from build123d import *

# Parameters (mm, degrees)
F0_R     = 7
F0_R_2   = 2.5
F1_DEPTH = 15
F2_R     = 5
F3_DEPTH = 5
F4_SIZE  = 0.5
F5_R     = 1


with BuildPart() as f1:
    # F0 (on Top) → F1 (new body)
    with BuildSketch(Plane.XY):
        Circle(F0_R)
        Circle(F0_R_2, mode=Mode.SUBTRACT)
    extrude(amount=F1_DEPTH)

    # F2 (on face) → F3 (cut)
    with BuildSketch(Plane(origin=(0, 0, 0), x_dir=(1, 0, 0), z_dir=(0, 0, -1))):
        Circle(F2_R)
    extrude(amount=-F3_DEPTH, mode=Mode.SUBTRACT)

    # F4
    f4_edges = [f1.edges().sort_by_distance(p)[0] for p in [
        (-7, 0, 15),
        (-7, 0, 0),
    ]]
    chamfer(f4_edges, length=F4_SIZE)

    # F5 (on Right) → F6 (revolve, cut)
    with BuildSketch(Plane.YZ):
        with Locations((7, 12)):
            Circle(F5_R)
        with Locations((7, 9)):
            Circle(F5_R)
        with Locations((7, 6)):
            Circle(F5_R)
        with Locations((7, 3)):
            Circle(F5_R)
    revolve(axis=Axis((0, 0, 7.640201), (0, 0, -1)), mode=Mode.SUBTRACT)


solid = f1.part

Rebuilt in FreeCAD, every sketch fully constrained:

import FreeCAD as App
import Part
import Sketcher

V = App.Vector
Q = App.Units.Quantity


def edges_at(feature, points):
    """Names of the edges that pass closest to the given points."""
    edges = feature.Shape.Edges
    near = lambda p: min(range(len(edges)), key=lambda i: edges[i].distToShape(Part.Vertex(*p))[0])
    return sorted({f"Edge{near(p) + 1}" for p in points})

doc = App.newDocument("Part")
params = doc.addObject("Spreadsheet::Sheet", "Params")
for row, (alias, value) in enumerate([
    ("sketch1_diameter", "14 mm"),
    ("sketch1_diameter2", "5 mm"),
    ("pad1_length", "15 mm"),
    ("sketch2_diameter", "10 mm"),
    ("pocket1_length", "5 mm"),
    ("chamfer_size", "0.5 mm"),
    ("sketch3_diameter", "2 mm"),
    ("groove_angle", "360 deg"),
], start=1):
    params.set(f"A{row}", alias)
    params.set(f"B{row}", "=" + value)
    params.setAlias(f"B{row}", alias)

body = doc.addObject("PartDesign::Body", "Body")

sketch1 = doc.addObject("Sketcher::SketchObject", "Sketch")
body.addObject(sketch1)
sketch1.AttachmentSupport = (doc.XY_Plane, [""])
sketch1.MapMode = "FlatFace"
sketch1.addGeometry([
    Part.Circle(V(0, 0, 0), V(0, 0, 1), 7),
    Part.Circle(V(0, 0, 0), V(0, 0, 1), 2.5),
], False)
sketch1.addConstraint([
    Sketcher.Constraint("Coincident", 0, 3, -1, 1),
    Sketcher.Constraint("Coincident", 1, 3, -1, 1),
    Sketcher.Constraint("Diameter", 0, Q("14 mm")),
    Sketcher.Constraint("Diameter", 1, Q("5 mm")),
])
sketch1.setExpression("Constraints[2]", "Params.sketch1_diameter")
sketch1.setExpression("Constraints[3]", "Params.sketch1_diameter2")
pad1 = doc.addObject("PartDesign::Pad", "Pad")
body.addObject(pad1)
pad1.Profile = sketch1
pad1.setExpression("Length", "Params.pad1_length")

sketch2 = doc.addObject("Sketcher::SketchObject", "Sketch001")
body.addObject(sketch2)
sketch2.AttachmentSupport = (doc.XY_Plane, [""])
sketch2.MapMode = "FlatFace"
sketch2.addGeometry(Part.Circle(V(0, 0, 0), V(0, 0, 1), 5), False)
sketch2.addConstraint([
    Sketcher.Constraint("Coincident", 0, 3, -1, 1),
    Sketcher.Constraint("Diameter", 0, Q("10 mm")),
])
sketch2.setExpression("Constraints[1]", "Params.sketch2_diameter")
pocket1 = doc.addObject("PartDesign::Pocket", "Pocket")
body.addObject(pocket1)
pocket1.Profile = sketch2
pocket1.setExpression("Length", "Params.pocket1_length")
pocket1.Reversed = True
doc.recompute()

chamfer = doc.addObject("PartDesign::Chamfer", "Chamfer")
body.addObject(chamfer)
chamfer.Base = (pocket1, edges_at(pocket1, [(-7, 0, 15), (-7, 0, 0)]))
chamfer.setExpression("Size", "Params.chamfer_size")

sketch3 = doc.addObject("Sketcher::SketchObject", "Sketch002")
body.addObject(sketch3)
sketch3.AttachmentSupport = (doc.YZ_Plane, [""])
sketch3.MapMode = "FlatFace"
sketch3.addGeometry([
    Part.Circle(V(7, 12, 0), V(0, 0, 1), 1),
    Part.Circle(V(7, 9, 0), V(0, 0, 1), 1),
    Part.Circle(V(7, 6, 0), V(0, 0, 1), 1),
    Part.Circle(V(7, 3, 0), V(0, 0, 1), 1),
], False)
sketch3.addConstraint([
    Sketcher.Constraint("Equal", 0, 1),
    Sketcher.Constraint("Equal", 1, 2),
    Sketcher.Constraint("Equal", 2, 3),
    Sketcher.Constraint("Vertical", 0, 3, 1, 3),
    Sketcher.Constraint("Vertical", 1, 3, 2, 3),
    Sketcher.Constraint("Vertical", 2, 3, 3, 3),
    Sketcher.Constraint("Diameter", 0, Q("2 mm")),
    Sketcher.Constraint("DistanceX", -1, 1, 0, 3, Q("7 mm")),
    Sketcher.Constraint("DistanceY", -1, 1, 0, 3, Q("12 mm")),
    Sketcher.Constraint("DistanceY", -1, 1, 1, 3, Q("9 mm")),
    Sketcher.Constraint("DistanceY", -1, 1, 2, 3, Q("6 mm")),
    Sketcher.Constraint("DistanceY", -1, 1, 3, 3, Q("3 mm")),
])
sketch3.setExpression("Constraints[6]", "Params.sketch3_diameter")
groove = doc.addObject("PartDesign::Groove", "Groove")
body.addObject(groove)
groove.Profile = sketch3
groove.ReferenceAxis = (sketch3, ["V_Axis"])
groove.setExpression("Angle", "Params.groove_angle")

doc.recompute()
